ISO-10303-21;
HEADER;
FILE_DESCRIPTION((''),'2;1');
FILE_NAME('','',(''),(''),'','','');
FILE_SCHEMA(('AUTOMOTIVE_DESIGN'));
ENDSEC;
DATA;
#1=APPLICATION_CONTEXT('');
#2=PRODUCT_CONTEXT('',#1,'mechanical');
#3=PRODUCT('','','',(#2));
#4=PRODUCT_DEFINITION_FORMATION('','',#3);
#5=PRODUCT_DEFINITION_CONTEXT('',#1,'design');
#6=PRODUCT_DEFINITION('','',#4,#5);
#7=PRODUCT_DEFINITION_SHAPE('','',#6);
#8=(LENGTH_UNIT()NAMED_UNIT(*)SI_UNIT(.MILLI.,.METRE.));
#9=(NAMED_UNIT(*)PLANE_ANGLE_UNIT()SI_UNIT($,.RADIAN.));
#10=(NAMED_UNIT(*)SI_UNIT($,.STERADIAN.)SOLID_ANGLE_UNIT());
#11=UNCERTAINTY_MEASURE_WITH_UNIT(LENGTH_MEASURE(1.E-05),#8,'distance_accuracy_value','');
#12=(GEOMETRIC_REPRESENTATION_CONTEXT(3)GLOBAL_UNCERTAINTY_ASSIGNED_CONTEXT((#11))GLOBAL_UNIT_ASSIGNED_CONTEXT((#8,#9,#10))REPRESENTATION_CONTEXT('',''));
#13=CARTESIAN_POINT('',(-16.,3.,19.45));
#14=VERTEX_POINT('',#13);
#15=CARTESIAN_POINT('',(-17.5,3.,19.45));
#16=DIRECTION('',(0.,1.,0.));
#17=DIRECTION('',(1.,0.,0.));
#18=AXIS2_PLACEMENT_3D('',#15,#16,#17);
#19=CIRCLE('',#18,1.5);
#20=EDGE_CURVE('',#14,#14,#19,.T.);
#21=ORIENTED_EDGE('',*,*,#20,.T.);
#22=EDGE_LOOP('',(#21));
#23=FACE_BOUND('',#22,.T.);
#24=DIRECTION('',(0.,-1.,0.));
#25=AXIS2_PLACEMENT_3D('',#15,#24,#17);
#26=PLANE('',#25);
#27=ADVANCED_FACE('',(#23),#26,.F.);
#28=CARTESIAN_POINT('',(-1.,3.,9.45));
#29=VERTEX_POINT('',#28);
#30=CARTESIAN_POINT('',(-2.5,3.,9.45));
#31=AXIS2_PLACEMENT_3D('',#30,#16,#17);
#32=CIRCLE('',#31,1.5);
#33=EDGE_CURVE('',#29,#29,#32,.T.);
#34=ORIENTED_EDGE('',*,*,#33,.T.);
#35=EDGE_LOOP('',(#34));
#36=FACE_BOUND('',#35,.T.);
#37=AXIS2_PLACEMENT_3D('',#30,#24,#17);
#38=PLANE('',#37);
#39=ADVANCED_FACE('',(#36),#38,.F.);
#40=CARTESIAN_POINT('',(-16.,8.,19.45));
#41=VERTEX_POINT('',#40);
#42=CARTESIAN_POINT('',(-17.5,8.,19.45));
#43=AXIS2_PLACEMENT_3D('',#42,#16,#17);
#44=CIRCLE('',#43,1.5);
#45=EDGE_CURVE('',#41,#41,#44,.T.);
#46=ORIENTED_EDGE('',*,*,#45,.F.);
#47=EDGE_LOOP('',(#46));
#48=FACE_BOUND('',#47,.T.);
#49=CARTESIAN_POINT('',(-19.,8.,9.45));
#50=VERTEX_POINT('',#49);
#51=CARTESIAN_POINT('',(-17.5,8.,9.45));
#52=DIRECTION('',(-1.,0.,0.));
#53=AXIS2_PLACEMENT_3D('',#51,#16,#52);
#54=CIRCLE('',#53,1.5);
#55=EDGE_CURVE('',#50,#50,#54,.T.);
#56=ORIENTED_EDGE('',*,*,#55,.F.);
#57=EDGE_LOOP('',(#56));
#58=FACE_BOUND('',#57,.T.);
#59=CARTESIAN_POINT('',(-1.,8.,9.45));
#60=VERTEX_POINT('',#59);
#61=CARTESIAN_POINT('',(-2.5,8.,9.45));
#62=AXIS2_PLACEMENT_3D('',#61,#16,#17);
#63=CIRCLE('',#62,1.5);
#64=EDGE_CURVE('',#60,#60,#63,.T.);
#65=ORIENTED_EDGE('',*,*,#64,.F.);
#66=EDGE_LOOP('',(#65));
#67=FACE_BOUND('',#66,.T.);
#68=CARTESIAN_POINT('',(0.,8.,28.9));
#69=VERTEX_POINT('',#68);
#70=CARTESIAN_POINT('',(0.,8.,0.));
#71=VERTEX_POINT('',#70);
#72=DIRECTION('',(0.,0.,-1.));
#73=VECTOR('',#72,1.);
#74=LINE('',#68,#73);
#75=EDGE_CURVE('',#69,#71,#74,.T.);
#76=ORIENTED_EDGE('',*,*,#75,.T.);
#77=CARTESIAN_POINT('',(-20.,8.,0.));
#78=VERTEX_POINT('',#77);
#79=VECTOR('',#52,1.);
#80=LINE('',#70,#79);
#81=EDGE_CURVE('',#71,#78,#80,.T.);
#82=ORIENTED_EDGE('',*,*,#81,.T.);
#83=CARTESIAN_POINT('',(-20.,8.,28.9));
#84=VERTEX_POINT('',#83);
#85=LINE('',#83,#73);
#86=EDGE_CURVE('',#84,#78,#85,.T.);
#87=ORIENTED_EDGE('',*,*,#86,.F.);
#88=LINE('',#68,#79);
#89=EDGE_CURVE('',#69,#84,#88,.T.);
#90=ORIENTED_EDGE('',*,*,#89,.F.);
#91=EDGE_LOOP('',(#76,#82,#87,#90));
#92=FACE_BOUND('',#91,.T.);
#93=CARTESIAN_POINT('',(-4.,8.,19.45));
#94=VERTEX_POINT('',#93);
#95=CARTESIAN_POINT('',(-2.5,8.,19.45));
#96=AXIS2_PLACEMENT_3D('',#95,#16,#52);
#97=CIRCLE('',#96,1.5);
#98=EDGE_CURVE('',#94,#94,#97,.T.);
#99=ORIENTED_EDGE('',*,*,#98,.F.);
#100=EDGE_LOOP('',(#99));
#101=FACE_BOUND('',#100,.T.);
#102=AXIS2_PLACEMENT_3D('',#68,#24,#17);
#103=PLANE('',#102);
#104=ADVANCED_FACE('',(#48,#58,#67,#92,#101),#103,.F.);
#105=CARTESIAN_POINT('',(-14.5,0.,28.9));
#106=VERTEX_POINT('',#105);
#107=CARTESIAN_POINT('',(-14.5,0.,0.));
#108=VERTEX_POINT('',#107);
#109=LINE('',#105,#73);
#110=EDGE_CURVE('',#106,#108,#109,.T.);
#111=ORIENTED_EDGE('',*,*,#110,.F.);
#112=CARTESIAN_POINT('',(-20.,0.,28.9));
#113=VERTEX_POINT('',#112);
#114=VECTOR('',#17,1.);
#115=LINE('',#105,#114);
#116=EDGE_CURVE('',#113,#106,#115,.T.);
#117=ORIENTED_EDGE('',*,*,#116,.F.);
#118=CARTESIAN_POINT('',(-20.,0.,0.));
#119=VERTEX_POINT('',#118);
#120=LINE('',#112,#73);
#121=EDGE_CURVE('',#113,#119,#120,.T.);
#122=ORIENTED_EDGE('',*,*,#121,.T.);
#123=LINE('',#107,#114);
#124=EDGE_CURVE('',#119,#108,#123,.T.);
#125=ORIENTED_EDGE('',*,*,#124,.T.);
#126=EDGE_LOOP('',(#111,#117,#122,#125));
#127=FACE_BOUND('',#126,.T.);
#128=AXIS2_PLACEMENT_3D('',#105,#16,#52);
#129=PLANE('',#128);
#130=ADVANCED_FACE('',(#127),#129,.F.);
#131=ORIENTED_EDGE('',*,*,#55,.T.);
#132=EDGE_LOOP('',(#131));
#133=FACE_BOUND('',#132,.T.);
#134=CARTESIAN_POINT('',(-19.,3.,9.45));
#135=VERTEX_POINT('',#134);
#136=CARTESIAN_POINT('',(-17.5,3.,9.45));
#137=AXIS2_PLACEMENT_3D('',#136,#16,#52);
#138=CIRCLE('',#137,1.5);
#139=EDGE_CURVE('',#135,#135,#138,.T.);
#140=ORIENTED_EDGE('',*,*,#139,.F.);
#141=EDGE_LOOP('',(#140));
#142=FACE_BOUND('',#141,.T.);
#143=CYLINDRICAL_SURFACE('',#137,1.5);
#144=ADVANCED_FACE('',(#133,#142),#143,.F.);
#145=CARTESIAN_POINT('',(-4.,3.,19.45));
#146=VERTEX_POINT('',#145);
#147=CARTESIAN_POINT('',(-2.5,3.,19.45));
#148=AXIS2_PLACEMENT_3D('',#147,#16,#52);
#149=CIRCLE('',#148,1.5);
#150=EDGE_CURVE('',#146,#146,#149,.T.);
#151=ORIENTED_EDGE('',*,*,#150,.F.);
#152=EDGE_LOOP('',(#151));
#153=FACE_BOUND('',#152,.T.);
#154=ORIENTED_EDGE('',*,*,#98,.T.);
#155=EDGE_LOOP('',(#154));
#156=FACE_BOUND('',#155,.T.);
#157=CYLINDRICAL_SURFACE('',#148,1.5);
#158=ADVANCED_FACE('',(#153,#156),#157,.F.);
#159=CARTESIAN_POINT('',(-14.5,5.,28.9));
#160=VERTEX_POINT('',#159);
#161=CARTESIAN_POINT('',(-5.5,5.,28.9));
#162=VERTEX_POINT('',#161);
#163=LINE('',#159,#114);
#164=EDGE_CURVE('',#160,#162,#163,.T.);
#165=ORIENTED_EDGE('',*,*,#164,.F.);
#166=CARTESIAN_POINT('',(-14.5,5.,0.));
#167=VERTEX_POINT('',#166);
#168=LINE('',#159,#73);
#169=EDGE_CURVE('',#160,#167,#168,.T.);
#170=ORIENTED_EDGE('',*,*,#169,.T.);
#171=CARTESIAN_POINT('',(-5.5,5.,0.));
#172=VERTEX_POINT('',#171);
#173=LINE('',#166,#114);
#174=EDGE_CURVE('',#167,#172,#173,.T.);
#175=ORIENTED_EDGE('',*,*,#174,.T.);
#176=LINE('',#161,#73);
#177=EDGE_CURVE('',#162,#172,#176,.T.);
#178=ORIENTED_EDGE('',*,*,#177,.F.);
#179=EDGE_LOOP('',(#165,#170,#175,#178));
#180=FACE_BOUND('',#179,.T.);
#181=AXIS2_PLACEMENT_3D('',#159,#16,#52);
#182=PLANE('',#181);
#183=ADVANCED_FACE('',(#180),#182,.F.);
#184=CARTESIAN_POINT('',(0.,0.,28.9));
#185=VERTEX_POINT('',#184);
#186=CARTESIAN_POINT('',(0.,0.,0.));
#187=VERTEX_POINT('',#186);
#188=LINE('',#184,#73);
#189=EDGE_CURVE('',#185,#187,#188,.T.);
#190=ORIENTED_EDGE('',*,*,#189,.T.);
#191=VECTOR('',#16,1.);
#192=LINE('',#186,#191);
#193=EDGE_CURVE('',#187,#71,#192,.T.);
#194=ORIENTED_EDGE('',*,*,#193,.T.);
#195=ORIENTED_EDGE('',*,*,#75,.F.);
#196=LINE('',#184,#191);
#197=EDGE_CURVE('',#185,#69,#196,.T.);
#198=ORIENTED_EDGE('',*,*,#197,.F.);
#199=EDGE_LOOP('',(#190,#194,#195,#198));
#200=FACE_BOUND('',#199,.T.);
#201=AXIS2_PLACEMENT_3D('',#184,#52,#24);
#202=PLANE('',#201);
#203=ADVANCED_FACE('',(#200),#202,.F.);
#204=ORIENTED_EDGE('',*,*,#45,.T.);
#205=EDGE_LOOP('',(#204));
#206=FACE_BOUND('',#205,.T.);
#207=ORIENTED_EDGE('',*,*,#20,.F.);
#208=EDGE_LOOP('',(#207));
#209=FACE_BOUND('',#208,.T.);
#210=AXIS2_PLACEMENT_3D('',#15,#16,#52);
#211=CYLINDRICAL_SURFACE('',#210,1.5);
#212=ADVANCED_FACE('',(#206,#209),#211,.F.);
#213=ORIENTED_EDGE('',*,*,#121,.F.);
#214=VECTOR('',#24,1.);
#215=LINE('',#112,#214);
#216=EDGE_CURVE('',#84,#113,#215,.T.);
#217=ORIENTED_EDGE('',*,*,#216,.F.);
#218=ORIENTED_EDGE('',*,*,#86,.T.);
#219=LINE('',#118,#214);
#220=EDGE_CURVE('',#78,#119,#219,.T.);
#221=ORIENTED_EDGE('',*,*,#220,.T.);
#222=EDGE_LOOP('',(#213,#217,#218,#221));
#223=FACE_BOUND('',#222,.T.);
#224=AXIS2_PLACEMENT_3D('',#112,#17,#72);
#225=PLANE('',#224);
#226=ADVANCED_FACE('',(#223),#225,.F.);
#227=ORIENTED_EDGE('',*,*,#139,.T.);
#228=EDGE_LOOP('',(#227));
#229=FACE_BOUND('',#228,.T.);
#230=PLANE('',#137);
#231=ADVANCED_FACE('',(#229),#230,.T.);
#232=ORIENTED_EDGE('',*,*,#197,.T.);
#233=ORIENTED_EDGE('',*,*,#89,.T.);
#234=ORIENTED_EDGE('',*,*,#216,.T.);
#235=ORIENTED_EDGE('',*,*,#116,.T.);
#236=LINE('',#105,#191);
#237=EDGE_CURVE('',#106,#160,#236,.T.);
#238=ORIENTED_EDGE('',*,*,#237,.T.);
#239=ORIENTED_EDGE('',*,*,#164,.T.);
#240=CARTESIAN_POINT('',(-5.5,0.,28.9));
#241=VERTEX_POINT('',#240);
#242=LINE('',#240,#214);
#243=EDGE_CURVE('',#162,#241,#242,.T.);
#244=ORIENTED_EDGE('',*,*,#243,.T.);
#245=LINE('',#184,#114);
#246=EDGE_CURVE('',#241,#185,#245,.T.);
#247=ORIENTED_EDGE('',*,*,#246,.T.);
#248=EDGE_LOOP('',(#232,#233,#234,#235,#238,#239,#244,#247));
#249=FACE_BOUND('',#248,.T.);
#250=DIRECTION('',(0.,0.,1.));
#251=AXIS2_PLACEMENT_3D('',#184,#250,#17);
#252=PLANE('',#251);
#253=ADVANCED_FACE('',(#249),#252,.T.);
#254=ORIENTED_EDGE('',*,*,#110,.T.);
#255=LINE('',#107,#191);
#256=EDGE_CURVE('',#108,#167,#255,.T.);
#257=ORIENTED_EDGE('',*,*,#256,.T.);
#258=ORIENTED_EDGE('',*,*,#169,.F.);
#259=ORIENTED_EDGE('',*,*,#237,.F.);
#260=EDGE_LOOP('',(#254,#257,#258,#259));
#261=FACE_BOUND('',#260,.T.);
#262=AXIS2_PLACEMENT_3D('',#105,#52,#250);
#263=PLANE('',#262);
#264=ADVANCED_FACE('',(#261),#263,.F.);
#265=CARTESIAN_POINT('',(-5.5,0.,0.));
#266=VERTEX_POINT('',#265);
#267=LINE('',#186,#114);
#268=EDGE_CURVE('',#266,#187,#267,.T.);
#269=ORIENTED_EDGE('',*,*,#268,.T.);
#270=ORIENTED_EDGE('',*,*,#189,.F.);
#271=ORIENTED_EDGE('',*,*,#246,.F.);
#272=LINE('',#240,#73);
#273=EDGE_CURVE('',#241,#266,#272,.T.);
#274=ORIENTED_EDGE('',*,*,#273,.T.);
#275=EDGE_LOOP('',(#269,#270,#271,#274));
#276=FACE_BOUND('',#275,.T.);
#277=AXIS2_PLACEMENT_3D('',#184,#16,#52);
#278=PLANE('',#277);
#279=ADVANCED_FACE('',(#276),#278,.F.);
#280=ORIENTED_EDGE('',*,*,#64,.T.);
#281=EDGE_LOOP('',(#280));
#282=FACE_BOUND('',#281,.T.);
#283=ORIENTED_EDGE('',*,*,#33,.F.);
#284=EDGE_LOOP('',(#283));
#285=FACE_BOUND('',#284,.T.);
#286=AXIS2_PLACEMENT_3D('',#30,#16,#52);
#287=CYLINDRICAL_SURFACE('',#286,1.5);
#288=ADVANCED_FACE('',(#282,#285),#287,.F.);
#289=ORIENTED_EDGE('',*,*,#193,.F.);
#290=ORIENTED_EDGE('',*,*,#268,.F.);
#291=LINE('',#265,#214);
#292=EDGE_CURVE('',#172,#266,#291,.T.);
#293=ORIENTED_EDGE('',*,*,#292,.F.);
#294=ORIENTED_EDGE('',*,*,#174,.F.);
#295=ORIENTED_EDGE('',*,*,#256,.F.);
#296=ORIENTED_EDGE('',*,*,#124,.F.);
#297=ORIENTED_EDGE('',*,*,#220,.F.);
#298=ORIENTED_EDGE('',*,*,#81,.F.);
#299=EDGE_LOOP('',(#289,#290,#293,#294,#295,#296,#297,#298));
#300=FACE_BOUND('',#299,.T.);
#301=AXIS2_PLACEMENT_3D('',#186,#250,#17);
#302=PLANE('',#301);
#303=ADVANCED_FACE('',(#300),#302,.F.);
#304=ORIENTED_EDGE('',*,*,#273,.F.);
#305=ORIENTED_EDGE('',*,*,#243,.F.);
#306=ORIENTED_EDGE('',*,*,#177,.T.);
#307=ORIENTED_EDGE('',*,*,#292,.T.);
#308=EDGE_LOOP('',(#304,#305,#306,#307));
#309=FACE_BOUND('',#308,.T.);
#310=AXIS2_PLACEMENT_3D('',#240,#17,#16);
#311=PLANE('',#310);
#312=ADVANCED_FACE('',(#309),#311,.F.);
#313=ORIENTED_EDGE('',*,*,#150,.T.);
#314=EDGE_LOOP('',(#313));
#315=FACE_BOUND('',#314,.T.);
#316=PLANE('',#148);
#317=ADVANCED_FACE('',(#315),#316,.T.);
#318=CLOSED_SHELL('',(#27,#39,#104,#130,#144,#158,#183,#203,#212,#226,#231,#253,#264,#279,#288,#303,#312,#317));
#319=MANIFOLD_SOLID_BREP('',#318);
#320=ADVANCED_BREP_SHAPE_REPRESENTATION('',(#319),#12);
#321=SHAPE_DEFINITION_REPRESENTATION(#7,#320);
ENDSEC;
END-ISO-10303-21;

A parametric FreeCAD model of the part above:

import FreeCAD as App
import Part
import Sketcher
from FreeCAD import Vector
Q = App.Units.Quantity


def add_polygon(sketch, points):
    """Adds a closed chain of lines whose ends are joined by coincident constraints."""
    first, n = sketch.GeometryCount, len(points)
    for a, b in zip(points, points[1:] + points[:1]):
        sketch.addGeometry(Part.LineSegment(App.Vector(*a, 0), App.Vector(*b, 0)), False)
    for i in range(n):
        sketch.addConstraint(Sketcher.Constraint("Coincident", first + i, 2, first + (i + 1) % n, 1))

doc = App.newDocument("Part")
body = doc.addObject("PartDesign::Body", "Body")

# Sketch on XY plane
sketch1 = body.newObject("Sketcher::SketchObject", "Sketch")
sketch1.AttachmentSupport = (doc.getObject("XY_Plane"), [""])
sketch1.MapMode = "FlatFace"
add_polygon(sketch1, [(-6, 0), (0, 0), (0, 8), (-20, 8), (-20, 0), (-14, 0), (-14, 5), (-6, 5)])  # lines 0-7
sketch1.addConstraint([
    Sketcher.Constraint("Horizontal", 0),
    Sketcher.Constraint("Vertical", 1),
    Sketcher.Constraint("Horizontal", 2),
    Sketcher.Constraint("Vertical", 3),
    Sketcher.Constraint("Horizontal", 4),
    Sketcher.Constraint("Vertical", 5),
    Sketcher.Constraint("Horizontal", 6),
    Sketcher.Constraint("Vertical", 7),
    Sketcher.Constraint("Coincident", 0, 2, -1, 1),
    Sketcher.Constraint("PointOnObject", 3, 2, -1),
    Sketcher.Constraint("Equal", 0, 4),
    Sketcher.Constraint("DistanceX", 2, 2, 2, 1, Q("20 mm")),
    Sketcher.Constraint("DistanceX", 6, 1, 6, 2, Q("9 mm")),
    Sketcher.Constraint("DistanceY", 1, 1, 1, 2, Q("8 mm")),
    Sketcher.Constraint("DistanceY", 5, 1, 5, 2, Q("5 mm")),
])
pad1 = body.newObject("PartDesign::Pad", "Pad")
pad1.Profile = sketch1
pad1.Length = 28.9

# Sketch on XZ plane
sketch2 = body.newObject("Sketcher::SketchObject", "Sketch001")
sketch2.AttachmentSupport = (doc.getObject("XZ_Plane"), [""])
sketch2.MapMode = "FlatFace"
sketch2.AttachmentOffset = App.Placement(Vector(0, 0, -8), App.Rotation())
sketch2.addGeometry([
    Part.Circle(Vector(-17.5, 9.4, 0), Vector(0, 0, 1), 1.5),
    Part.Circle(Vector(-2.5, 9.4, 0), Vector(0, 0, 1), 1.5),
    Part.Circle(Vector(-2.5, 19.4, 0), Vector(0, 0, 1), 1.5),
    Part.Circle(Vector(-17.5, 19.4, 0), Vector(0, 0, 1), 1.5),
], False)
sketch2.addConstraint([
    Sketcher.Constraint("Equal", 0, 1),
    Sketcher.Constraint("Equal", 1, 2),
    Sketcher.Constraint("Equal", 2, 3),
    Sketcher.Constraint("Horizontal", 0, 3, 1, 3),
    Sketcher.Constraint("Horizontal", 2, 3, 3, 3),
    Sketcher.Constraint("Vertical", 1, 3, 2, 3),
    Sketcher.Constraint("Vertical", 0, 3, 3, 3),
    Sketcher.Constraint("Diameter", 0, Q("3 mm")),
    Sketcher.Constraint("DistanceX", 0, 3, 1, 3, Q("15 mm")),
    Sketcher.Constraint("DistanceY", 1, 3, 2, 3, Q("10 mm")),
    Sketcher.Constraint("DistanceX", 0, 3, -1, 1, Q("17.5 mm")),
    Sketcher.Constraint("DistanceY", -1, 1, 0, 3, Q("9.45 mm")),
])
pocket1 = body.newObject("PartDesign::Pocket", "Pocket")
pocket1.Profile = sketch2
pocket1.Length = 5
pocket1.Reversed = True

doc.recompute()
